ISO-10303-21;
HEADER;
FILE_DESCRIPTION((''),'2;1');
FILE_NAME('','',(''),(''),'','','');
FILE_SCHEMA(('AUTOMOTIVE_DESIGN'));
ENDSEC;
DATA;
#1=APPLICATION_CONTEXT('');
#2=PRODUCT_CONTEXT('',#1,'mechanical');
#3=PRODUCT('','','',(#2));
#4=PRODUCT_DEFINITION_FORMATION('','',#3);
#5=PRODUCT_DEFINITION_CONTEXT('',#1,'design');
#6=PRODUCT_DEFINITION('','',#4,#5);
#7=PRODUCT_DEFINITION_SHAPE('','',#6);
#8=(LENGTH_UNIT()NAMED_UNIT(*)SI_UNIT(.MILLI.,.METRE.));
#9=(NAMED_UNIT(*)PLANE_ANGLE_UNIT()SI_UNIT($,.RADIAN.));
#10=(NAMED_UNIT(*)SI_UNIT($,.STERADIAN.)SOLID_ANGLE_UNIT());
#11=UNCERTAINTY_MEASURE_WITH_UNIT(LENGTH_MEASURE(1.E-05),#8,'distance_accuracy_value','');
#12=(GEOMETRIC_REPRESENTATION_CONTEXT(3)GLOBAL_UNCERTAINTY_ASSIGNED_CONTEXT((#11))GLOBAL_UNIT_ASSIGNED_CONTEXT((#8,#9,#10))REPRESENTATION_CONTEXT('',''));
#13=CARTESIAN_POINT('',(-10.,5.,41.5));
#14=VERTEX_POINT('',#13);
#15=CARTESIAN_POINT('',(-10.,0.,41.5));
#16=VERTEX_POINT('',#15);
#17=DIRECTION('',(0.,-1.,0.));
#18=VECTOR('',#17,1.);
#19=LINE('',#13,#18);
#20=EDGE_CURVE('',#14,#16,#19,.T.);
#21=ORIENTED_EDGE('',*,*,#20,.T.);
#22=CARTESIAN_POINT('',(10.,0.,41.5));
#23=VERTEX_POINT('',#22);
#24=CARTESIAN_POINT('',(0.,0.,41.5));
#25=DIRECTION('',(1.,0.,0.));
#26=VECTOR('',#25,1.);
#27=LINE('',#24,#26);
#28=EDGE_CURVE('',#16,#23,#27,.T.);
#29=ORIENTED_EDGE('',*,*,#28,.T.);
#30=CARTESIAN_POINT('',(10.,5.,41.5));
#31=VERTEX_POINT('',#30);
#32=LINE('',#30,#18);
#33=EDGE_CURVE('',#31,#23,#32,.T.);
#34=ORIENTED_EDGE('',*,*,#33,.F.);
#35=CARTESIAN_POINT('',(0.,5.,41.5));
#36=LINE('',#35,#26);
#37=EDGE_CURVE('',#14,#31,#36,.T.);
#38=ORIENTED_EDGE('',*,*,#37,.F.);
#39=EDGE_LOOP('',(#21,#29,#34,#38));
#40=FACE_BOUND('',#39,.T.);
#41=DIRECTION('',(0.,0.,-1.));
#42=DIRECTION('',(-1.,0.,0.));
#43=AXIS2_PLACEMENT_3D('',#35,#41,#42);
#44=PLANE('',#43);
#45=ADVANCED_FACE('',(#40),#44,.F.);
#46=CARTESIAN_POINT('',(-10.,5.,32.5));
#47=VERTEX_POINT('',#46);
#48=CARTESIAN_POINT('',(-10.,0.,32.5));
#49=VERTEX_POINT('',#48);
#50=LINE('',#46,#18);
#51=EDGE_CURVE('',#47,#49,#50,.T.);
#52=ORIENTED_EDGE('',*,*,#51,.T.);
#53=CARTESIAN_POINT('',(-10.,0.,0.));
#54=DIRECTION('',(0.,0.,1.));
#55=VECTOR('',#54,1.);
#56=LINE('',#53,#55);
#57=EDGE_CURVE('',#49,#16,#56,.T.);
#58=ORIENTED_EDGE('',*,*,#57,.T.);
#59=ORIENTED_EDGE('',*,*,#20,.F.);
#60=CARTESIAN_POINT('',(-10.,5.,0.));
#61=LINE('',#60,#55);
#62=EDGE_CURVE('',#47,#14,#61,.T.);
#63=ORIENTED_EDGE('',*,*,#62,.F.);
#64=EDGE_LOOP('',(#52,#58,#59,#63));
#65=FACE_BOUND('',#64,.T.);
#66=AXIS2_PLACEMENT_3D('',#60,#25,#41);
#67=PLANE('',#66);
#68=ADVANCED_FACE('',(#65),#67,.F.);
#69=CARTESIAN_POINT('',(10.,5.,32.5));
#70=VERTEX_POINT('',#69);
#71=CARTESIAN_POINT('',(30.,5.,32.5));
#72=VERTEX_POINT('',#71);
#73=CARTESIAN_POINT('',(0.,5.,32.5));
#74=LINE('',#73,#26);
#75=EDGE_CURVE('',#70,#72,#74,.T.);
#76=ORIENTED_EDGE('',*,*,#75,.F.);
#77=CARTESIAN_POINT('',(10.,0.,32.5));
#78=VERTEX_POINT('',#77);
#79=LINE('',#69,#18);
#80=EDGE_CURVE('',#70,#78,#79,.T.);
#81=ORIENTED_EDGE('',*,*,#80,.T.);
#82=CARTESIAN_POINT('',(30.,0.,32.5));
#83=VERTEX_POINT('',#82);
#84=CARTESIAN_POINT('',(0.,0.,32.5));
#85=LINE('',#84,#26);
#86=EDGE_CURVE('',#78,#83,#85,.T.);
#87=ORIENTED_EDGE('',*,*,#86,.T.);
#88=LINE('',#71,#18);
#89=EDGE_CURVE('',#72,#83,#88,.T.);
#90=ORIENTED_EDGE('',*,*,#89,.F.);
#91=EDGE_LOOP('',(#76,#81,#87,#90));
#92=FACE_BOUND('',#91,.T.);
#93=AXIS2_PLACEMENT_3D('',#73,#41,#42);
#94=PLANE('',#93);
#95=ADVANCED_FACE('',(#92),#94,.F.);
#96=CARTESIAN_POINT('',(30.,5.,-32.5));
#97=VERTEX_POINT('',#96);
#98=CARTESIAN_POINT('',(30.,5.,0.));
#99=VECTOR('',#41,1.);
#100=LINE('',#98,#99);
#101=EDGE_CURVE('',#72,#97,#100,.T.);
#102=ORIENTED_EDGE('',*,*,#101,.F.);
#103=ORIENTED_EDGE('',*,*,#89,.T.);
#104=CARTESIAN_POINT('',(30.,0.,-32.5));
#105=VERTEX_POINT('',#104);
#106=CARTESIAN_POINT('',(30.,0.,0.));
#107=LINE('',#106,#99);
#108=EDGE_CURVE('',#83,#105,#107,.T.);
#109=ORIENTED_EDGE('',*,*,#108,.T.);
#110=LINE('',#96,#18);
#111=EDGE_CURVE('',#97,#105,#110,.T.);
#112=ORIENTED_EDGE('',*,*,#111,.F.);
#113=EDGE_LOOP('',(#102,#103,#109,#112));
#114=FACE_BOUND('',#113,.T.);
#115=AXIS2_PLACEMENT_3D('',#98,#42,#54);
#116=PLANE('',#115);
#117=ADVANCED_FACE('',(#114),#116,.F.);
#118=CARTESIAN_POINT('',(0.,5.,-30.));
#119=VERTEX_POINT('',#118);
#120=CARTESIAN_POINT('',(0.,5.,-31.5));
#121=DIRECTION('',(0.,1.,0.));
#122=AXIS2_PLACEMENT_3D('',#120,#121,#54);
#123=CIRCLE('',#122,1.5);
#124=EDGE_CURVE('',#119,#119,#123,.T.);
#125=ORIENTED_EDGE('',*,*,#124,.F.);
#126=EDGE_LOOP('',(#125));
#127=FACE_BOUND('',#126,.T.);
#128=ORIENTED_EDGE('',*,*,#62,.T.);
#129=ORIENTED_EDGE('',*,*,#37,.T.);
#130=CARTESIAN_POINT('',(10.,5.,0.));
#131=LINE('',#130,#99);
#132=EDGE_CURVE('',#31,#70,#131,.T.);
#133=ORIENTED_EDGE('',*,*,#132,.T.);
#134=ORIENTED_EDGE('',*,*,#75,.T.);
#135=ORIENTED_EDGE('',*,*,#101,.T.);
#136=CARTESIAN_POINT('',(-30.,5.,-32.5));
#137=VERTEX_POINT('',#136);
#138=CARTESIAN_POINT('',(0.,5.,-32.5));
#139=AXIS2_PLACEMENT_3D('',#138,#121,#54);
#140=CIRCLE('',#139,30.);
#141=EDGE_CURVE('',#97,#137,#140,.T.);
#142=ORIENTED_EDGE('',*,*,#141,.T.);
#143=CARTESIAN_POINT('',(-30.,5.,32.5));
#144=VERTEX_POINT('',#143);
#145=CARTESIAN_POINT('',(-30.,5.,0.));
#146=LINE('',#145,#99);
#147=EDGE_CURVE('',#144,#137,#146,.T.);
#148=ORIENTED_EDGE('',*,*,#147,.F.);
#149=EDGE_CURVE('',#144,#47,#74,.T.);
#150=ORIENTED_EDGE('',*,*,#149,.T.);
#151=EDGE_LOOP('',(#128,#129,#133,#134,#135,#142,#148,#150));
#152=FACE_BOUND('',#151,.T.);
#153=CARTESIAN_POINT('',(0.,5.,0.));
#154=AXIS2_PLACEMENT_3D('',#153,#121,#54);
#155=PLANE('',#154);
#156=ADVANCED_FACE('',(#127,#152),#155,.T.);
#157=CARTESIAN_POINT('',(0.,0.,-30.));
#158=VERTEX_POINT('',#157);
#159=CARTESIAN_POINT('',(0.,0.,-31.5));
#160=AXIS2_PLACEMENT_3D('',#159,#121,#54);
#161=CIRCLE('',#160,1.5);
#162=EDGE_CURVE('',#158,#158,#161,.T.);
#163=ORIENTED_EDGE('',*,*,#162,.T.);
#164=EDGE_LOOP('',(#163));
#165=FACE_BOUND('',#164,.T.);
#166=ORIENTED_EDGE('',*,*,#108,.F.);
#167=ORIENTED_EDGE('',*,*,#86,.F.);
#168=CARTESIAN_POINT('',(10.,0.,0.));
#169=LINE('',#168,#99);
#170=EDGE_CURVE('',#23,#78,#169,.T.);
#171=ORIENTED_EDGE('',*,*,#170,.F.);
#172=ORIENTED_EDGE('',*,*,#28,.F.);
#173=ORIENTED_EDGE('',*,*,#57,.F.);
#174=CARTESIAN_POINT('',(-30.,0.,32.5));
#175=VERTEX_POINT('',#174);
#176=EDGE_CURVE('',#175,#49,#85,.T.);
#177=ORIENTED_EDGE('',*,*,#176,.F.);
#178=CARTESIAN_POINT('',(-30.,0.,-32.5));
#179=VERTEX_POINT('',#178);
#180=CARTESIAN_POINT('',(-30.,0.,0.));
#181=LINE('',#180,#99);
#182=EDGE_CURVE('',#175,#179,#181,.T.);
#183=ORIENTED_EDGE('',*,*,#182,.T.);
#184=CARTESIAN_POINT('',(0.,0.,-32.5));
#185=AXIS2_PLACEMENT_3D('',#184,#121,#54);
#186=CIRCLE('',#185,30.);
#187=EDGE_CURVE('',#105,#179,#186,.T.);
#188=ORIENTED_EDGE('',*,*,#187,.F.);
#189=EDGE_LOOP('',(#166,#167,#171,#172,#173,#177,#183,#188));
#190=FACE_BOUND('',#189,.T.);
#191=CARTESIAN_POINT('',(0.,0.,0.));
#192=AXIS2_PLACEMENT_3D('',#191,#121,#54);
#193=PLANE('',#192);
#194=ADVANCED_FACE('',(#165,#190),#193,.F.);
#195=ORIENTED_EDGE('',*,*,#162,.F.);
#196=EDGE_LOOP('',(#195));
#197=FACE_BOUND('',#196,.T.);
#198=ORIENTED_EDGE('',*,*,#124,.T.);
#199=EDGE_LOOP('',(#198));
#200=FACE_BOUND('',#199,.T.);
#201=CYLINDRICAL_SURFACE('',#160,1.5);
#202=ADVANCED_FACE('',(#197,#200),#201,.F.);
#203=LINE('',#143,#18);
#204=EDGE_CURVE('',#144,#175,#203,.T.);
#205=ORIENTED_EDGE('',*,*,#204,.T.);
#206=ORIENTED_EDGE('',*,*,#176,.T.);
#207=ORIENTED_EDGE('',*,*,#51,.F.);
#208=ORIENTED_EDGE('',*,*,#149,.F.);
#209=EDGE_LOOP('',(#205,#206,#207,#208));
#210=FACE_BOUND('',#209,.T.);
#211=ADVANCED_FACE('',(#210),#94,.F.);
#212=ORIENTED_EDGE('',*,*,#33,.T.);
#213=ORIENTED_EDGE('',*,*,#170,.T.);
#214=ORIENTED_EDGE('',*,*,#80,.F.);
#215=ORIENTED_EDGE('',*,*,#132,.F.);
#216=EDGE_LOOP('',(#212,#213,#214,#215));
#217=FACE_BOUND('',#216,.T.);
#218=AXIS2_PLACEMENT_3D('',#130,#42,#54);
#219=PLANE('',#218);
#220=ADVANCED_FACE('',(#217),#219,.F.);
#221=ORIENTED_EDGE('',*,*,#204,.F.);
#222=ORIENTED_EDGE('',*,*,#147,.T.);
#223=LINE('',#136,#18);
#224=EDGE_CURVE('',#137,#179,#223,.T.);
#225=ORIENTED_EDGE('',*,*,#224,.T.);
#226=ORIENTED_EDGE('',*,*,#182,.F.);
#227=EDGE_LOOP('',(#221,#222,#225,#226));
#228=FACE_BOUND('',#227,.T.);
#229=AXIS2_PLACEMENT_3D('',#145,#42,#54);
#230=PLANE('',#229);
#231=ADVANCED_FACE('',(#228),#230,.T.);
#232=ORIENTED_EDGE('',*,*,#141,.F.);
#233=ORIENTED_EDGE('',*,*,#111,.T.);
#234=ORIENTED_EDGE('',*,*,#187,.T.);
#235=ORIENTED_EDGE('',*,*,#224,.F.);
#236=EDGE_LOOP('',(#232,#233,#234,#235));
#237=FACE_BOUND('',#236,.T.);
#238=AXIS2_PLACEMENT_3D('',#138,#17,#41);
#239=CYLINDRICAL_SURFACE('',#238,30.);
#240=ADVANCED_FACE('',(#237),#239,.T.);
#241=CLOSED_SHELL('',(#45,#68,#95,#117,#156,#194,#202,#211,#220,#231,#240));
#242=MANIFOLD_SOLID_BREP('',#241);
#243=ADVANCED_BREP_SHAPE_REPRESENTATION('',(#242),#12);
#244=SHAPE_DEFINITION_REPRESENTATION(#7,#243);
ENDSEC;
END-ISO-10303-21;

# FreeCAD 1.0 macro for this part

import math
import FreeCAD as App
import Part
import Sketcher

V = App.Vector
Q = App.Units.Quantity

doc = App.newDocument("Part")
params = doc.addObject("Spreadsheet::Sheet", "Params")
for row, (alias, value) in enumerate([
    ("sketch1_radius", "30 mm"),
    ("sketch1_height", "65 mm"),
    ("sketch1_height2", "9 mm"),
    ("pad1_length", "5 mm"),
    ("sketch2_diameter", "3 mm"),
], start=1):
    params.set(f"A{row}", alias)
    params.set(f"B{row}", "=" + value)
    params.setAlias(f"B{row}", alias)

body = doc.addObject("PartDesign::Body", "Body")

# Sketch on XZ plane
sketch1 = body.newObject("Sketcher::SketchObject", "Sketch")
sketch1.AttachmentSupport = (doc.getObject("XZ_Plane"), [""])
sketch1.MapMode = "FlatFace"
sketch1.addGeometry([
    Part.LineSegment(V(-30, -32, 0), V(-30, 32, 0)),  # 0
    Part.LineSegment(V(-30, 32, 0), V(-10, 32, 0)),  # 1
    Part.LineSegment(V(-10, 32, 0), V(-10, 42, 0)),  # 2
    Part.LineSegment(V(-10, 42, 0), V(10, 42, 0)),  # 3
    Part.LineSegment(V(10, 42, 0), V(10, 32, 0)),  # 4
    Part.LineSegment(V(10, 32, 0), V(30, 32, 0)),  # 5
    Part.LineSegment(V(30, 32, 0), V(30, -32, 0)),  # 6
    Part.ArcOfCircle(Part.Circle(V(0, -32, 0), V(0, 0, 1), 30), math.radians(180), math.radians(360)),  # 7
], False)
sketch1.addConstraint([
    Sketcher.Constraint("Coincident", 0, 2, 1, 1),
    Sketcher.Constraint("Coincident", 1, 2, 2, 1),
    Sketcher.Constraint("Coincident", 2, 2, 3, 1),
    Sketcher.Constraint("Coincident", 3, 2, 4, 1),
    Sketcher.Constraint("Coincident", 4, 2, 5, 1),
    Sketcher.Constraint("Coincident", 5, 2, 6, 1),
    Sketcher.Constraint("Tangent", 6, 2, 7, 2),
    Sketcher.Constraint("Tangent", 7, 1, 0, 1),
    Sketcher.Constraint("Vertical", 0),
    Sketcher.Constraint("Horizontal", 1),
    Sketcher.Constraint("Vertical", 2),
    Sketcher.Constraint("Horizontal", 3),
    Sketcher.Constraint("Vertical", 4),
    Sketcher.Constraint("Horizontal", 5),
    Sketcher.Constraint("Vertical", 6),
    Sketcher.Constraint("Symmetric", 0, 2, 6, 2, -1, 1),
    Sketcher.Constraint("Symmetric", 1, 2, 4, 2, -2),
    Sketcher.Constraint("Equal", 1, 3),
    Sketcher.Constraint("Radius", 7, Q("30 mm")),
    Sketcher.Constraint("DistanceY", 0, 1, 0, 2, Q("65 mm")),
    Sketcher.Constraint("DistanceY", 2, 1, 2, 2, Q("9 mm")),
])
sketch1.setExpression("Constraints[18]", "Params.sketch1_radius")
sketch1.setExpression("Constraints[19]", "Params.sketch1_height")
sketch1.setExpression("Constraints[20]", "Params.sketch1_height2")
pad1 = body.newObject("PartDesign::Pad", "Pad")
pad1.Profile = sketch1
pad1.setExpression("Length", "Params.pad1_length")
pad1.Reversed = True

# Sketch on XZ plane
sketch2 = body.newObject("Sketcher::SketchObject", "Sketch001")
sketch2.AttachmentSupport = (doc.getObject("XZ_Plane"), [""])
sketch2.MapMode = "FlatFace"
sketch2.AttachmentOffset = App.Placement(V(0, 0, -5), App.Rotation())
sketch2.addGeometry(Part.Circle(V(0, -31.5, 0), V(0, 0, 1), 1.5), False)
sketch2.addConstraint([
    Sketcher.Constraint("PointOnObject", 0, 3, -2),
    Sketcher.Constraint("Diameter", 0, Q("3 mm")),
    Sketcher.Constraint("DistanceY", 0, 3, -1, 1, Q("31.5 mm")),
])
sketch2.setExpression("Constraints[1]", "Params.sketch2_diameter")
pocket1 = body.newObject("PartDesign::Pocket", "Pocket")
pocket1.Profile = sketch2
pocket1.Type = "ThroughAll"
pocket1.Reversed = True

doc.recompute()
